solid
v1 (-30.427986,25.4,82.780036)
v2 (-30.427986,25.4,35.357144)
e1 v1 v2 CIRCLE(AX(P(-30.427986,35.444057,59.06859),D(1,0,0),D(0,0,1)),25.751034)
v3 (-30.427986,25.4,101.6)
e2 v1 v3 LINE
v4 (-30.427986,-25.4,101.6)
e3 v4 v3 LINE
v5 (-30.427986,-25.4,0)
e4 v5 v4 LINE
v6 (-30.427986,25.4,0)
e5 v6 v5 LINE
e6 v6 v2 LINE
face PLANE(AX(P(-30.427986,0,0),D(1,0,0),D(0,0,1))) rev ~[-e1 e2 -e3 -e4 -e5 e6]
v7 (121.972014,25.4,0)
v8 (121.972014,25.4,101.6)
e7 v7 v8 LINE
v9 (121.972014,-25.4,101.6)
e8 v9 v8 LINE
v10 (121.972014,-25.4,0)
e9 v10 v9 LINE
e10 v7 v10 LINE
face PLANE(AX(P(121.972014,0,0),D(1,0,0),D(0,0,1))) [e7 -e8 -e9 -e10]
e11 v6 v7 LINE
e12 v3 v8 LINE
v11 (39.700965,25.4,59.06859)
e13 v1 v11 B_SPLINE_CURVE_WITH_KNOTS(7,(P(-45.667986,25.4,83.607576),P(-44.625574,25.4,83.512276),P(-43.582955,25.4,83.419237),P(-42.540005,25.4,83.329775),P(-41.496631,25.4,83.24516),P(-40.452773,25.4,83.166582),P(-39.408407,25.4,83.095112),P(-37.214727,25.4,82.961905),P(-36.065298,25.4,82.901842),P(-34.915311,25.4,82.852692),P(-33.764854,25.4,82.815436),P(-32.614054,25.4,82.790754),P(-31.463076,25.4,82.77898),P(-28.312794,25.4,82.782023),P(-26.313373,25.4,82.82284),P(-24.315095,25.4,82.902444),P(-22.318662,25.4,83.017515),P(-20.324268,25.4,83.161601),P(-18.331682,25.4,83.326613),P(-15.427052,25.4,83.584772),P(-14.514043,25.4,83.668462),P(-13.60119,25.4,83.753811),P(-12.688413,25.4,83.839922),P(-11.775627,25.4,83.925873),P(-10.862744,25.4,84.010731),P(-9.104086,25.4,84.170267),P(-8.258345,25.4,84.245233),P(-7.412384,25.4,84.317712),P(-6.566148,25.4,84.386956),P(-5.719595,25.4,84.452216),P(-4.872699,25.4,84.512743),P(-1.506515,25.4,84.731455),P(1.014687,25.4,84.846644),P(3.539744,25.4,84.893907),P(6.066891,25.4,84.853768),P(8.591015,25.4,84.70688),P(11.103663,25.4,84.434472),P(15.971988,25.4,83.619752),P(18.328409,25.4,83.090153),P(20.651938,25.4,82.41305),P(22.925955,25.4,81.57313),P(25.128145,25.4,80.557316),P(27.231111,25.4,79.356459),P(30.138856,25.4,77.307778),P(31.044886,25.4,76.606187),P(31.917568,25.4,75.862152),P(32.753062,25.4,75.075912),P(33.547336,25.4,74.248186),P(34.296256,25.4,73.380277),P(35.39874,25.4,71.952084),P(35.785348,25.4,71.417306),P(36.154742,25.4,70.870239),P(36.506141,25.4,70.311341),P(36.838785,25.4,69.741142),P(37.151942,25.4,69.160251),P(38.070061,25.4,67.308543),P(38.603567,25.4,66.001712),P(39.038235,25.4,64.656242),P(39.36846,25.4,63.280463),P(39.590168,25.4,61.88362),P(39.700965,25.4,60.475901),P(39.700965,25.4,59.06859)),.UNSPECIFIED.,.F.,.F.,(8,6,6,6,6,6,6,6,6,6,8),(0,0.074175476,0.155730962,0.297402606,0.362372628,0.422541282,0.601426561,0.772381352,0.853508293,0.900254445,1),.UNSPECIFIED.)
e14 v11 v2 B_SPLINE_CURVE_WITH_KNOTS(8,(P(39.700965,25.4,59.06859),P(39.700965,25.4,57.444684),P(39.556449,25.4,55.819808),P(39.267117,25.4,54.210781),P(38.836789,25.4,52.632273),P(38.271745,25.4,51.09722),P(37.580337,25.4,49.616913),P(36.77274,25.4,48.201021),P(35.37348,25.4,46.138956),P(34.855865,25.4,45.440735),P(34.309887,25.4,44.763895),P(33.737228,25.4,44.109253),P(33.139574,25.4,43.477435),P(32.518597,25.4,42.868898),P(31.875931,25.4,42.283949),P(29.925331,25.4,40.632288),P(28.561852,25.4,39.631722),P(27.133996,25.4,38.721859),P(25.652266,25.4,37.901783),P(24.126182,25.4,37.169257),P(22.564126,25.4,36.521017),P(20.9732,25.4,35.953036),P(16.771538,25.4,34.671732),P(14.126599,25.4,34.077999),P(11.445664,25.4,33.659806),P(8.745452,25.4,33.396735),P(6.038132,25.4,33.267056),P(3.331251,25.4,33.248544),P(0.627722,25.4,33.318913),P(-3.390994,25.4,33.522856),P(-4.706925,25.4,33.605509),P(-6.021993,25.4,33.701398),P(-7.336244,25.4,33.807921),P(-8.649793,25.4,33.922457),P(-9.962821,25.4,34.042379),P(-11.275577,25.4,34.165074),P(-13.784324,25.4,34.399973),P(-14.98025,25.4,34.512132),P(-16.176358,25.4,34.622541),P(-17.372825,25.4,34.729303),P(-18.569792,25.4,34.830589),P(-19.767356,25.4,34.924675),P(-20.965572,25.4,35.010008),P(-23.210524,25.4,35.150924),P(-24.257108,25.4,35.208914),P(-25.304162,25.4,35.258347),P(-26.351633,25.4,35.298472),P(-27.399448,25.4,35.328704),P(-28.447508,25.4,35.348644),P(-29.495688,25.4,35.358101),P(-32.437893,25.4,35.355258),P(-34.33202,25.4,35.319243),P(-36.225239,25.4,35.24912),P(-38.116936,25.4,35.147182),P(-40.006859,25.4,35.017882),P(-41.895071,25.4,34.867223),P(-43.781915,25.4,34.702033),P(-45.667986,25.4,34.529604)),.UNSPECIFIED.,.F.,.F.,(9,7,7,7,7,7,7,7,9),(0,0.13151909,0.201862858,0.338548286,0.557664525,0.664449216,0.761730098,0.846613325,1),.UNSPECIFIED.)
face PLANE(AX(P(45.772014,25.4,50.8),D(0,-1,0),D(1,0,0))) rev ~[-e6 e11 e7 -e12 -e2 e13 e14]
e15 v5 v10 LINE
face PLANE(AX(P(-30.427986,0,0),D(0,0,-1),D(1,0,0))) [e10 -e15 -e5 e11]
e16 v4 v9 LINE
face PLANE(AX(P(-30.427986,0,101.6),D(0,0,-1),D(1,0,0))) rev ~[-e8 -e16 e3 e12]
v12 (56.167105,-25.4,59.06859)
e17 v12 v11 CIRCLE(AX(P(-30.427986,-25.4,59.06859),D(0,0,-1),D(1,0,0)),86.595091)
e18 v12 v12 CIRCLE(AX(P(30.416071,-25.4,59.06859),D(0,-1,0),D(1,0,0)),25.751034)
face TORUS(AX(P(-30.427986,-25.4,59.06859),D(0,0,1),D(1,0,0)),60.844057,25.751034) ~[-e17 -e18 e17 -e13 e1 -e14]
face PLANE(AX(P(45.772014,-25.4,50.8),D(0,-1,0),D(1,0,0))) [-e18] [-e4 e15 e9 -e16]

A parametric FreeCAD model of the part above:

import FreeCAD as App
import Part
import Sketcher

V = App.Vector
Q = App.Units.Quantity

doc = App.newDocument("Part")
body = doc.addObject("PartDesign::Body", "Body")

sketch1 = body.newObject("Sketcher::SketchObject", "Sketch")
sketch1.AttachmentSupport = (doc.getObject("XZ_Plane"), [""])
sketch1.MapMode = "FlatFace"
sketch1.addGeometry([
    Part.LineSegment(V(-30.427986, 101.6, 0), V(-30.427986, 0, 0)),
    Part.LineSegment(V(-30.427986, 0, 0), V(121.972014, 0, 0)),
    Part.LineSegment(V(121.972014, 0, 0), V(121.972014, 101.6, 0)),
    Part.LineSegment(V(121.972014, 101.6, 0), V(-30.427986, 101.6, 0)),
], False)
sketch1.addConstraint([
    Sketcher.Constraint("Coincident", 0, 2, 1, 1),
    Sketcher.Constraint("Coincident", 1, 2, 2, 1),
    Sketcher.Constraint("Coincident", 2, 2, 3, 1),
    Sketcher.Constraint("Coincident", 3, 2, 0, 1),
    Sketcher.Constraint("Vertical", 0),
    Sketcher.Constraint("Horizontal", 1),
    Sketcher.Constraint("Vertical", 2),
    Sketcher.Constraint("Horizontal", 3),
    Sketcher.Constraint("PointOnObject", 0, 2, -1),
    Sketcher.Constraint("DistanceX", 1, 1, 1, 2, Q("6 in")),
    Sketcher.Constraint("DistanceY", 0, 2, 0, 1, Q("4 in")),
    Sketcher.Constraint("DistanceX", 0, 2, -1, 1, Q("30.427986 mm")),
])
pad1 = body.newObject("PartDesign::Pad", "Pad")
pad1.Profile = sketch1
pad1.Length = Q("2 in")
pad1.Midplane = True

sketch2 = body.newObject("Sketcher::SketchObject", "Sketch001")
sketch2.AttachmentSupport = (doc.getObject("XZ_Plane"), [""])
sketch2.MapMode = "FlatFace"
sketch2.AttachmentOffset = App.Placement(V(0, 0, 1 * 25.4), App.Rotation())
sketch2.addGeometry(Part.Circle(V(30.416071, 59.06859, 0), V(0, 0, 1), 25.751034), False)
sketch2.addGeometry(Part.LineSegment(V(-30.427986, 59.06859, 0), V(-30.427986, 49.06859, 0)), True)
sketch2.addConstraint([
    Sketcher.Constraint("Vertical", 1),
    Sketcher.Constraint("Horizontal", 0, 3, 1, 1),
    Sketcher.Constraint("Diameter", 0, Q("51.502068 mm")),
    Sketcher.Constraint("DistanceY", 1, 2, 1, 1, Q("10 mm")),
    Sketcher.Constraint("DistanceX", -1, 1, 0, 3, Q("30.416071 mm")),
    Sketcher.Constraint("DistanceY", -1, 1, 0, 3, Q("59.06859 mm")),
    Sketcher.Constraint("DistanceX", 1, 1, -1, 1, Q("30.427986 mm")),
])
revolution = body.newObject("PartDesign::Revolution", "Revolution")
revolution.Profile = sketch2
revolution.ReferenceAxis = (sketch2, ["Axis0"])
revolution.Angle = 360

doc.recompute()
